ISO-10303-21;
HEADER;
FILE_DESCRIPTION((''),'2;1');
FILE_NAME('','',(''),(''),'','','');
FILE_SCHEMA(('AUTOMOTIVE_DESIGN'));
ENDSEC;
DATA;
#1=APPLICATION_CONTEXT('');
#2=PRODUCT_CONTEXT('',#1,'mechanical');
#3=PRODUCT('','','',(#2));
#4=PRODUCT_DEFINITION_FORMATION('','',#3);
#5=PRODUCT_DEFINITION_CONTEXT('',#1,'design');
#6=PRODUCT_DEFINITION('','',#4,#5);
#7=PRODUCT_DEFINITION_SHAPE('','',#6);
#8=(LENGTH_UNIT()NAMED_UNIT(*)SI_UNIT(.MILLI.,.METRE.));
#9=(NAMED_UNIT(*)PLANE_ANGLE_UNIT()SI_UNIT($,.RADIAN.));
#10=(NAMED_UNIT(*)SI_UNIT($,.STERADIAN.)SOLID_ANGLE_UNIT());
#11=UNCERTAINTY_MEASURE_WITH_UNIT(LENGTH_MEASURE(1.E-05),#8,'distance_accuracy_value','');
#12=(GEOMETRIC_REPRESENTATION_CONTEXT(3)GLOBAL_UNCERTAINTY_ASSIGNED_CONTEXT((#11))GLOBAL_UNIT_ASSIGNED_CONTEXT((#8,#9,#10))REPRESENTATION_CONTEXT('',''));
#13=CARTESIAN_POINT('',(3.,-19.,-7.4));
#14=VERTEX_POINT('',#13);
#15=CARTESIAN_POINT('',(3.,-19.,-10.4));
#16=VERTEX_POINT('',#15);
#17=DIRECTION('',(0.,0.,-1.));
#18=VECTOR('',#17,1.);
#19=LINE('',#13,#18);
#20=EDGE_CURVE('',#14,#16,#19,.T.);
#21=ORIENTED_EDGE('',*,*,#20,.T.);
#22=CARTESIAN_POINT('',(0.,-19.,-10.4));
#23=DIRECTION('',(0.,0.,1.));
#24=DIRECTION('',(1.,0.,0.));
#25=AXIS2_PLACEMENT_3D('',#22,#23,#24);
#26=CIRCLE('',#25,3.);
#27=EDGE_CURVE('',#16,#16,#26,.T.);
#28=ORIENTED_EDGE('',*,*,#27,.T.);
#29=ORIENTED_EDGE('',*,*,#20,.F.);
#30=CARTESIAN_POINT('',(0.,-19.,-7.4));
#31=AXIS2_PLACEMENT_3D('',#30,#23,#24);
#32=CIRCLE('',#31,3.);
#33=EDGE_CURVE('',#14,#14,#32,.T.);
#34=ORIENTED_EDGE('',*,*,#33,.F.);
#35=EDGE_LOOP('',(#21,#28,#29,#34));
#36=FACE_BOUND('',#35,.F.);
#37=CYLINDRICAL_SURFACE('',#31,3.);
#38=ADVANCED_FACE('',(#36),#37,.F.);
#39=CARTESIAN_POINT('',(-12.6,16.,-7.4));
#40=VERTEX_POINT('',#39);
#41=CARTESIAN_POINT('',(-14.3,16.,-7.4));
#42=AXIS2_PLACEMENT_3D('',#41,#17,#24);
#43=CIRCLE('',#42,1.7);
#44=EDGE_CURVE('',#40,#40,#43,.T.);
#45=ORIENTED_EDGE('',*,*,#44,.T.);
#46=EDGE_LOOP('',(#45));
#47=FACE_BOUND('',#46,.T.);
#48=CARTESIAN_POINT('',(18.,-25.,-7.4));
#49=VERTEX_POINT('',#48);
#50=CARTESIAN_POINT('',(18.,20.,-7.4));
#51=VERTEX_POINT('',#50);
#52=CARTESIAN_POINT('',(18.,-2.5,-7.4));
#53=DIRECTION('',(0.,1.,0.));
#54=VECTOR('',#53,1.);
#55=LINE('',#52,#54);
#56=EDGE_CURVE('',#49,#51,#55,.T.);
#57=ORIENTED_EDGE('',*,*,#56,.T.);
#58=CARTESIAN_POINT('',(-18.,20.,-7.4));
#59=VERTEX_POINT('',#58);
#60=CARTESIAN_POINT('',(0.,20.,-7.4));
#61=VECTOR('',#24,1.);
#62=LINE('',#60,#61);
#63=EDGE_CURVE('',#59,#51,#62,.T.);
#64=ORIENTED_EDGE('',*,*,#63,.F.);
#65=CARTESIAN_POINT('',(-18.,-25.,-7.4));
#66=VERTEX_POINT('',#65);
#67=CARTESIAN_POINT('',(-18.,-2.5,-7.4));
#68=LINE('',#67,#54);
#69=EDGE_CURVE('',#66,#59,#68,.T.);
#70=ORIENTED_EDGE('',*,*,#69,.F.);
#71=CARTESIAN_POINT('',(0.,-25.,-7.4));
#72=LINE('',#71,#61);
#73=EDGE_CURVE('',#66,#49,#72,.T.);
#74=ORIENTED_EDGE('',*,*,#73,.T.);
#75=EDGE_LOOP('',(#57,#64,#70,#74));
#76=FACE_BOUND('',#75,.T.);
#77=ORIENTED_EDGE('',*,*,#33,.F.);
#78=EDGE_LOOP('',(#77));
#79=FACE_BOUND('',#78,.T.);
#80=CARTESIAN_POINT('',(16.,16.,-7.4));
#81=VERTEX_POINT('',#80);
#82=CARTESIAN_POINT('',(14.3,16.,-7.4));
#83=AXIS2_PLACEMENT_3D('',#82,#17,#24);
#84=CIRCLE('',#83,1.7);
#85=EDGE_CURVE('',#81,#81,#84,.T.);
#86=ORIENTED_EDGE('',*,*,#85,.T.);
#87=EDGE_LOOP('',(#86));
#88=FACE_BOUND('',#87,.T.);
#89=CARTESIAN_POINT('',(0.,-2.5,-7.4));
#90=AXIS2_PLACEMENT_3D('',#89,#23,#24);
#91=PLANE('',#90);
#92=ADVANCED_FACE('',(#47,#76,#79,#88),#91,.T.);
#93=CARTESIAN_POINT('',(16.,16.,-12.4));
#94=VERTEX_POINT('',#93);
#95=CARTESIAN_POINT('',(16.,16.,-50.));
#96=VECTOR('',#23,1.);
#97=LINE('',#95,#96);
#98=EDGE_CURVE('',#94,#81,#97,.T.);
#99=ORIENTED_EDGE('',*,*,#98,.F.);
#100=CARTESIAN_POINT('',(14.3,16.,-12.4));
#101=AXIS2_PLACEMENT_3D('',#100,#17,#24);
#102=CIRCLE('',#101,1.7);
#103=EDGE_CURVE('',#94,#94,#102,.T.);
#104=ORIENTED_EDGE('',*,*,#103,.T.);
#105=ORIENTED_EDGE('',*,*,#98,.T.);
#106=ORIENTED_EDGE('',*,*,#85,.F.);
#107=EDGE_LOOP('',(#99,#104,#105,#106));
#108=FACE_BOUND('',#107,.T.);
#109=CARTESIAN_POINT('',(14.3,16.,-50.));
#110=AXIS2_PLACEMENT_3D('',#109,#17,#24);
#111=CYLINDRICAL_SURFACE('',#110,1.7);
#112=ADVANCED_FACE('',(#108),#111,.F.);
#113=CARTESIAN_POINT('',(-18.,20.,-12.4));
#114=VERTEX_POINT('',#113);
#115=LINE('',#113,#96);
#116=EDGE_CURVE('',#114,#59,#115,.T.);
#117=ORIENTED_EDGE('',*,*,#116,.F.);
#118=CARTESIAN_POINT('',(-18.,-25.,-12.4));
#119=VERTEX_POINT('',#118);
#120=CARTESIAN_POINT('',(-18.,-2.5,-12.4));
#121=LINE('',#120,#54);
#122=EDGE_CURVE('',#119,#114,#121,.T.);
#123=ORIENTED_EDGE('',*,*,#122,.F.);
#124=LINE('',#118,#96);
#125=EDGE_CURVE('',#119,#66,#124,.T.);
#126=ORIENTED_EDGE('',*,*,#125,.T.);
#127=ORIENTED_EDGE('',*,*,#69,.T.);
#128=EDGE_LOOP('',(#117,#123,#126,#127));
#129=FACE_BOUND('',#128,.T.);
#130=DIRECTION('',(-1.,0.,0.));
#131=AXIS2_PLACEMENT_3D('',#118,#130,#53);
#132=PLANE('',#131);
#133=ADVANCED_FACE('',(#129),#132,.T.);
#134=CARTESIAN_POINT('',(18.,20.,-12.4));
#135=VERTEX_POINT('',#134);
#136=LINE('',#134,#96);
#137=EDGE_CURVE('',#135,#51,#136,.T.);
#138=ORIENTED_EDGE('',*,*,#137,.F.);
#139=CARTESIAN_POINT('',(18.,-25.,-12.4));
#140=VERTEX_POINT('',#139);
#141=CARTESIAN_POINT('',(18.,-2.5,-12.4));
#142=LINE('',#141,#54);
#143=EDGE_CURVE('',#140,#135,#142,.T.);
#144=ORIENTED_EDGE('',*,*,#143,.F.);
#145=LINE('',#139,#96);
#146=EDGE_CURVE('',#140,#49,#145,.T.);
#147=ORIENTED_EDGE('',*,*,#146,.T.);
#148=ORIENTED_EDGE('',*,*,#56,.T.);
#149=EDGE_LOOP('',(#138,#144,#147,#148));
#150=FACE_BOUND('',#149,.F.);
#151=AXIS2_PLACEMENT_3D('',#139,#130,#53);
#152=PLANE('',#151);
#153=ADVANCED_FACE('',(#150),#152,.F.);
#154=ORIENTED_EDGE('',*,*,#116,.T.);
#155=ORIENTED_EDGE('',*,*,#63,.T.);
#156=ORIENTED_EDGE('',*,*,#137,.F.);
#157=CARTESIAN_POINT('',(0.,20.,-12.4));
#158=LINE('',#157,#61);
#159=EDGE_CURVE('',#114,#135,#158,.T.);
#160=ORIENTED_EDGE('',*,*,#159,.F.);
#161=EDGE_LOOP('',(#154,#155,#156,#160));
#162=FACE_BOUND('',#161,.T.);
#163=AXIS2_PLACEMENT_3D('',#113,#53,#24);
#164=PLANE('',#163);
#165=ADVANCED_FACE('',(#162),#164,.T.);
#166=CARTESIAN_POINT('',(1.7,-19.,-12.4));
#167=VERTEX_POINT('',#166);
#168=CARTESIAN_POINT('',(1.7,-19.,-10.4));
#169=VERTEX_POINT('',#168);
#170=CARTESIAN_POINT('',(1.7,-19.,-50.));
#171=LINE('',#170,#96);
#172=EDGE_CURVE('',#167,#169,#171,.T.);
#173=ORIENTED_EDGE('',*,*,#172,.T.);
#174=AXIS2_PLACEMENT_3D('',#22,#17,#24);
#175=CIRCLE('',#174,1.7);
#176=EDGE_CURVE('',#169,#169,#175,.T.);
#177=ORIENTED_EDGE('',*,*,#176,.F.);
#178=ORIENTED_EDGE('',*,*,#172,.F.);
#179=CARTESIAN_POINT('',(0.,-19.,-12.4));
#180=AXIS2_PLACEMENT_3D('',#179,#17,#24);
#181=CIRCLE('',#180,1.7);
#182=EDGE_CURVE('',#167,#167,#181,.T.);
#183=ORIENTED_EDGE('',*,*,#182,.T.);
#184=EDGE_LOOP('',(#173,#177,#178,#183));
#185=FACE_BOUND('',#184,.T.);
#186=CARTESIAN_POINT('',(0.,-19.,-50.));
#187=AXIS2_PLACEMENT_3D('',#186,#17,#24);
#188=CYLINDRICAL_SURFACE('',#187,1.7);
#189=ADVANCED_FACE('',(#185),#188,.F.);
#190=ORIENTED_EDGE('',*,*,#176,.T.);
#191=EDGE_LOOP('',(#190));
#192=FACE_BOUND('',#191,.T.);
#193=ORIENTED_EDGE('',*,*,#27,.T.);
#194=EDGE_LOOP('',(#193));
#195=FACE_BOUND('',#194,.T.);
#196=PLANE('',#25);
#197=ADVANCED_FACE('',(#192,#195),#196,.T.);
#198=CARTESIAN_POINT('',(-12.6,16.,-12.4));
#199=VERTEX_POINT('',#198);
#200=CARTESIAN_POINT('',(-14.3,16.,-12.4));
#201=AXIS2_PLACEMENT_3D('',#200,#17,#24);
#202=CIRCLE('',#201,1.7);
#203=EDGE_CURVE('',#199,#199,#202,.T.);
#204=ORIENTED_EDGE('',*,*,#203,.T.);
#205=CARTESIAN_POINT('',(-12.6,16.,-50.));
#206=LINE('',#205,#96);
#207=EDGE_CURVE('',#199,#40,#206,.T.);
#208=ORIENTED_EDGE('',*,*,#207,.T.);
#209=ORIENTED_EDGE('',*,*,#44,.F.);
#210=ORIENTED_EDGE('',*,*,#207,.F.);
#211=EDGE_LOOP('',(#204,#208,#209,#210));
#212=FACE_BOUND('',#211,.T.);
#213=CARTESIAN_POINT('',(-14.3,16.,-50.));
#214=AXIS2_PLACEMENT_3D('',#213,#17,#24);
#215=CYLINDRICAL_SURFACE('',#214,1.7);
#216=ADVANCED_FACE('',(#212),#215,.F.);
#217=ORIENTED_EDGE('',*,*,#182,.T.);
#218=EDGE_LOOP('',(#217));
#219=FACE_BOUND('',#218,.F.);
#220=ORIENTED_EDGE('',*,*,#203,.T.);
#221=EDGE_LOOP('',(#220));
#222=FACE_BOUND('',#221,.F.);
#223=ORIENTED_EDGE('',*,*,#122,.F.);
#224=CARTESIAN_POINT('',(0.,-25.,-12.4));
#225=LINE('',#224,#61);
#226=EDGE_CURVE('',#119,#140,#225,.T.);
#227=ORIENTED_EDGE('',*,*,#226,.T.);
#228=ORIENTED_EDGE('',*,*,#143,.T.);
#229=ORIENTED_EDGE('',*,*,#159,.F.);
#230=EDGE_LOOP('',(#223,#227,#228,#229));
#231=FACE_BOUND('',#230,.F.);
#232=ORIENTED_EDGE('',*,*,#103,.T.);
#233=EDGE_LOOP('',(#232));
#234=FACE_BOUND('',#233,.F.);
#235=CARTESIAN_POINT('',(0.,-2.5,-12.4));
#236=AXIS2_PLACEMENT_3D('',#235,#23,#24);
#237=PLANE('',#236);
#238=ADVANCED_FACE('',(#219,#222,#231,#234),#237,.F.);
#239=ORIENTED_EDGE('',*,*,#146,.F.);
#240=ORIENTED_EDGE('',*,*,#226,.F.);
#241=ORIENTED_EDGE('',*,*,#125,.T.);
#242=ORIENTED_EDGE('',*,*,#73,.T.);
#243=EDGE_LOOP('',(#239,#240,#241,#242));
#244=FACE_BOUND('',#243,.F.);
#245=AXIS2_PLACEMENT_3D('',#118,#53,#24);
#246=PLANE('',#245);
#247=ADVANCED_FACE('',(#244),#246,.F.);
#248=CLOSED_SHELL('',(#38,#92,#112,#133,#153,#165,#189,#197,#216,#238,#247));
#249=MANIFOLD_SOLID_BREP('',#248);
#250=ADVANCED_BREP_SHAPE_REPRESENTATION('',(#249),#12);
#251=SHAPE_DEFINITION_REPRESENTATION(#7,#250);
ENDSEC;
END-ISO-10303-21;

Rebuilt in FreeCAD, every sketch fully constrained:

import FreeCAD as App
import Part
import Sketcher

doc = App.newDocument("Part")
params = doc.addObject("Spreadsheet::Sheet", "Params")
for row, (alias, value) in enumerate([
    ("sketch1_diameter", "3.4 mm"),
    ("pad1_length", "100 mm"),
    ("sketch2_width", "36 mm"),
    ("sketch2_height", "45 mm"),
    ("pad2_length", "5 mm"),
    ("sketch3_diameter", "6 mm"),
    ("pocket1_length", "3 mm"),
], start=1):
    params.set(f"A{row}", alias)
    params.set(f"B{row}", "=" + value)
    params.setAlias(f"B{row}", alias)

body = doc.addObject("PartDesign::Body", "Body")
body.AllowCompound = True

# Sketch on XY plane
sketch1 = doc.addObject("Sketcher::SketchObject", "Sketch")
body.addObject(sketch1)
sketch1.AttachmentSupport = (doc.XY_Plane, [""])
sketch1.MapMode = "FlatFace"
sketch1.AttachmentOffset = App.Placement(App.Vector(0, 0, -50), App.Rotation())
sketch1.addGeometry([
    Part.Circle(App.Vector(0, -19, 0), App.Vector(0, 0, 1), 1.7),
    Part.Circle(App.Vector(-14.3, 16, 0), App.Vector(0, 0, 1), 1.7),
    Part.Circle(App.Vector(14.3, 16, 0), App.Vector(0, 0, 1), 1.7),
], False)
sketch1.addConstraint([
    Sketcher.Constraint("Equal", 0, 1),
    Sketcher.Constraint("Equal", 1, 2),
    Sketcher.Constraint("Symmetric", 1, 3, 2, 3, -2),
    Sketcher.Constraint("PointOnObject", 0, 3, -2),
    Sketcher.Constraint("Diameter", 0, 3.4),
    Sketcher.Constraint("DistanceY", 0, 3, -1, 1, 19.0),
    Sketcher.Constraint("DistanceY", -1, 1, 1, 3, 16.0),
    Sketcher.Constraint("DistanceX", 1, 3, -1, 1, 14.3),
])
sketch1.setExpression("Constraints[4]", "Params.sketch1_diameter")
pad1 = doc.addObject("PartDesign::Pad", "Pad")
body.addObject(pad1)
pad1.Profile = sketch1
pad1.setExpression("Length", "Params.pad1_length")
body2 = doc.addObject("PartDesign::Body", "Body001")

# Sketch on XY plane
sketch2 = doc.addObject("Sketcher::SketchObject", "Sketch001")
body2.addObject(sketch2)
sketch2.AttachmentSupport = (doc.getObject("XY_Plane001"), [""])
sketch2.MapMode = "FlatFace"
sketch2.AttachmentOffset = App.Placement(App.Vector(0, 0, -12.4), App.Rotation())
sketch2.addGeometry([
    Part.LineSegment(App.Vector(-18, 20, 0), App.Vector(-18, -25, 0)),
    Part.LineSegment(App.Vector(-18, -25, 0), App.Vector(18, -25, 0)),
    Part.LineSegment(App.Vector(18, -25, 0), App.Vector(18, 20, 0)),
    Part.LineSegment(App.Vector(18, 20, 0), App.Vector(-18, 20, 0)),
], False)
sketch2.addConstraint([
    Sketcher.Constraint("Coincident", 0, 2, 1, 1),
    Sketcher.Constraint("Coincident", 1, 2, 2, 1),
    Sketcher.Constraint("Coincident", 2, 2, 3, 1),
    Sketcher.Constraint("Coincident", 3, 2, 0, 1),
    Sketcher.Constraint("Vertical", 0),
    Sketcher.Constraint("Horizontal", 1),
    Sketcher.Constraint("Vertical", 2),
    Sketcher.Constraint("Horizontal", 3),
    Sketcher.Constraint("DistanceX", 1, 1, 1, 2, 36.0),
    Sketcher.Constraint("DistanceY", 0, 2, 0, 1, 45.0),
    Sketcher.Constraint("DistanceX", 0, 2, -1, 1, 18.0),
    Sketcher.Constraint("DistanceY", 0, 2, -1, 1, 25.0),
])
sketch2.setExpression("Constraints[8]", "Params.sketch2_width")
sketch2.setExpression("Constraints[9]", "Params.sketch2_height")
pad2 = doc.addObject("PartDesign::Pad", "Pad001")
body2.addObject(pad2)
pad2.Profile = sketch2
pad2.setExpression("Length", "Params.pad2_length")
doc.recompute()

boolean = doc.addObject("PartDesign::Boolean", "Boolean")
body2.addObject(boolean)
boolean.Type = "Cut"
boolean.addObjects([body])

# Sketch on XY plane
sketch3 = doc.addObject("Sketcher::SketchObject", "Sketch002")
body2.addObject(sketch3)
sketch3.AttachmentSupport = (doc.getObject("XY_Plane001"), [""])
sketch3.MapMode = "FlatFace"
sketch3.AttachmentOffset = App.Placement(App.Vector(0, 0, -7.4), App.Rotation())
sketch3.addGeometry(Part.Circle(App.Vector(0, -19, 0), App.Vector(0, 0, 1), 3), False)
sketch3.addConstraint([
    Sketcher.Constraint("PointOnObject", 0, 3, -2),
    Sketcher.Constraint("Diameter", 0, 6.0),
    Sketcher.Constraint("DistanceY", 0, 3, -1, 1, 19.0),
])
sketch3.setExpression("Constraints[1]", "Params.sketch3_diameter")
pocket1 = doc.addObject("PartDesign::Pocket", "Pocket")
body2.addObject(pocket1)
pocket1.Profile = sketch3
pocket1.setExpression("Length", "Params.pocket1_length")

doc.recompute()
